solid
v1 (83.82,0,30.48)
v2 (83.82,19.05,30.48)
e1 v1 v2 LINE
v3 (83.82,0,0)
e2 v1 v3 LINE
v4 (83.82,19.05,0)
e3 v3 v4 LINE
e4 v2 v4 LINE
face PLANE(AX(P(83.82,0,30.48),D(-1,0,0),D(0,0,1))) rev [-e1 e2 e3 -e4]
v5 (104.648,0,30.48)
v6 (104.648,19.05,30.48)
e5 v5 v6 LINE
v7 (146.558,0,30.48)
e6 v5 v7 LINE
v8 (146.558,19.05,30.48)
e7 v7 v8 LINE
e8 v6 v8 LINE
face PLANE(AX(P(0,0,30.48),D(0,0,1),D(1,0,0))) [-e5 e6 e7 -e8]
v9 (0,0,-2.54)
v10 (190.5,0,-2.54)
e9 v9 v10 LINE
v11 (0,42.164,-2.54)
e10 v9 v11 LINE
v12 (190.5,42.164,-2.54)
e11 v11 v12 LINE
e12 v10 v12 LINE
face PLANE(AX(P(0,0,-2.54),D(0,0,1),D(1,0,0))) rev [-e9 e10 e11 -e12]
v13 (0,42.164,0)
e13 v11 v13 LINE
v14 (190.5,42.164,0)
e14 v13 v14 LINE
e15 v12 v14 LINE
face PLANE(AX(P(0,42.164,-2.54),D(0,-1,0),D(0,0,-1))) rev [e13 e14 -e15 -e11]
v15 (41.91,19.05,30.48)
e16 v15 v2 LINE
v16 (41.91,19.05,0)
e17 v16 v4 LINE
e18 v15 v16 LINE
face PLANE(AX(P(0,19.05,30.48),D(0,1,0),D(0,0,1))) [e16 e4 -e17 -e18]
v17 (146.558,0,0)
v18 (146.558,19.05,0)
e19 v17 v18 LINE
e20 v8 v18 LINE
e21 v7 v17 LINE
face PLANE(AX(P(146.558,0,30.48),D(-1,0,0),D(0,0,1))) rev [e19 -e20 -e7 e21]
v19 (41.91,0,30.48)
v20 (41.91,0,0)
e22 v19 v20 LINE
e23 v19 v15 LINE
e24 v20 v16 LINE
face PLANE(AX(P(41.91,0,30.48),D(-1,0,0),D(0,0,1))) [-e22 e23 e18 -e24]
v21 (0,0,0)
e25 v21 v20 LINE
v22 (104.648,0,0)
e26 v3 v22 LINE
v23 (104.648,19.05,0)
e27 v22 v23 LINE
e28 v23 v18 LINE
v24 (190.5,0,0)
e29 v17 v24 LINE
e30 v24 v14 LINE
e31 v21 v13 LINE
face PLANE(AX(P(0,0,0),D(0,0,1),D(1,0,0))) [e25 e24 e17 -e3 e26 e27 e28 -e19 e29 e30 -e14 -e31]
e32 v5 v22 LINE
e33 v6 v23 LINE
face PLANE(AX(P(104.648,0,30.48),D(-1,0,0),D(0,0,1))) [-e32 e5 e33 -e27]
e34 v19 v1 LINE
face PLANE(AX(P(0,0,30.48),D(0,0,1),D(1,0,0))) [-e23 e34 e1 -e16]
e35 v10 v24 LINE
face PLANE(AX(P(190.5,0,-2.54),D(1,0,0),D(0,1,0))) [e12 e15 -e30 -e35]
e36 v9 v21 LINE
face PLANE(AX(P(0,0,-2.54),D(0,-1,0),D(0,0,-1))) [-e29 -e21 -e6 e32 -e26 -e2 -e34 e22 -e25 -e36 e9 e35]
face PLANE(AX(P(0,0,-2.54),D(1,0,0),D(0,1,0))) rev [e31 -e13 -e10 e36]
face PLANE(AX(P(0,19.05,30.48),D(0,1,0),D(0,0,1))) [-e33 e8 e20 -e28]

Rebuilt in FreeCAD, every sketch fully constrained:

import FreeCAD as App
import Part
import Sketcher
from FreeCAD import Vector
Q = App.Units.Quantity

doc = App.newDocument("Part")
params = doc.addObject("Spreadsheet::Sheet", "Params")
for row, (alias, value) in enumerate([
    ("sketch1_width", "7.5 in"),
    ("sketch1_height", "1.66 in"),
    ("pad1_length", "0.1 in"),
    ("sketch2_width", "1.65 in"),
    ("sketch2_height", "0.75 in"),
    ("pad2_length", "1.2 in"),
], start=1):
    params.set(f"A{row}", alias)
    params.set(f"B{row}", "=" + value)
    params.setAlias(f"B{row}", alias)

body = doc.addObject("PartDesign::Body", "Body")

sketch1 = doc.addObject("Sketcher::SketchObject", "Sketch")
body.addObject(sketch1)
sketch1.AttachmentSupport = (doc.XY_Plane, [""])
sketch1.MapMode = "FlatFace"
sketch1.addGeometry([
    Part.LineSegment(Vector(0, 42, 0), Vector(0, 0, 0)),
    Part.LineSegment(Vector(0, 0, 0), Vector(190, 0, 0)),
    Part.LineSegment(Vector(190, 0, 0), Vector(190, 42, 0)),
    Part.LineSegment(Vector(190, 42, 0), Vector(0, 42, 0)),
], False)
sketch1.addConstraint([
    Sketcher.Constraint("Coincident", 0, 2, 1, 1),
    Sketcher.Constraint("Coincident", 1, 2, 2, 1),
    Sketcher.Constraint("Coincident", 2, 2, 3, 1),
    Sketcher.Constraint("Coincident", 3, 2, 0, 1),
    Sketcher.Constraint("Vertical", 0),
    Sketcher.Constraint("Horizontal", 1),
    Sketcher.Constraint("Vertical", 2),
    Sketcher.Constraint("Horizontal", 3),
    Sketcher.Constraint("Coincident", 0, 2, -1, 1),
    Sketcher.Constraint("DistanceX", 1, 1, 1, 2, Q("7.5 in")),
    Sketcher.Constraint("DistanceY", 0, 2, 0, 1, Q("1.66 in")),
])
sketch1.setExpression("Constraints[9]", "Params.sketch1_width")
sketch1.setExpression("Constraints[10]", "Params.sketch1_height")
pad1 = doc.addObject("PartDesign::Pad", "Pad")
body.addObject(pad1)
pad1.Profile = sketch1
pad1.setExpression("Length", "Params.pad1_length")
pad1.Reversed = True

sketch2 = doc.addObject("Sketcher::SketchObject", "Sketch001")
body.addObject(sketch2)
sketch2.AttachmentSupport = (doc.XY_Plane, [""])
sketch2.MapMode = "FlatFace"
sketch2.addGeometry([
    Part.LineSegment(Vector(42, 19, 0), Vector(42, 0, 0)),
    Part.LineSegment(Vector(42, 0, 0), Vector(84, 0, 0)),
    Part.LineSegment(Vector(84, 0, 0), Vector(84, 19, 0)),
    Part.LineSegment(Vector(84, 19, 0), Vector(42, 19, 0)),
    Part.LineSegment(Vector(105, 19, 0), Vector(105, 0, 0)),
    Part.LineSegment(Vector(105, 0, 0), Vector(147, 0, 0)),
    Part.LineSegment(Vector(147, 0, 0), Vector(147, 19, 0)),
    Part.LineSegment(Vector(147, 19, 0), Vector(105, 19, 0)),
], False)
sketch2.addConstraint([
    Sketcher.Constraint("Coincident", 0, 2, 1, 1),
    Sketcher.Constraint("Coincident", 1, 2, 2, 1),
    Sketcher.Constraint("Coincident", 2, 2, 3, 1),
    Sketcher.Constraint("Coincident", 3, 2, 0, 1),
    Sketcher.Constraint("Coincident", 4, 2, 5, 1),
    Sketcher.Constraint("Coincident", 5, 2, 6, 1),
    Sketcher.Constraint("Coincident", 6, 2, 7, 1),
    Sketcher.Constraint("Coincident", 7, 2, 4, 1),
    Sketcher.Constraint("Vertical", 0),
    Sketcher.Constraint("Horizontal", 1),
    Sketcher.Constraint("Vertical", 2),
    Sketcher.Constraint("Horizontal", 3),
    Sketcher.Constraint("Vertical", 4),
    Sketcher.Constraint("Horizontal", 5),
    Sketcher.Constraint("Vertical", 6),
    Sketcher.Constraint("Horizontal", 7),
    Sketcher.Constraint("PointOnObject", 0, 2, -1),
    Sketcher.Constraint("PointOnObject", 4, 2, -1),
    Sketcher.Constraint("Horizontal", 3, 2, 6, 2),
    Sketcher.Constraint("Equal", 3, 5),
    Sketcher.Constraint("DistanceX", 1, 1, 1, 2, Q("1.65 in")),
    Sketcher.Constraint("DistanceY", 0, 2, 0, 1, Q("0.75 in")),
    Sketcher.Constraint("DistanceX", -1, 1, 1, 2, Q("3.3 in")),
    Sketcher.Constraint("DistanceX", -1, 1, 4, 2, Q("4.12 in")),
])
sketch2.setExpression("Constraints[20]", "Params.sketch2_width")
sketch2.setExpression("Constraints[21]", "Params.sketch2_height")
pad2 = doc.addObject("PartDesign::Pad", "Pad001")
body.addObject(pad2)
pad2.Profile = sketch2
pad2.setExpression("Length", "Params.pad2_length")

doc.recompute()
